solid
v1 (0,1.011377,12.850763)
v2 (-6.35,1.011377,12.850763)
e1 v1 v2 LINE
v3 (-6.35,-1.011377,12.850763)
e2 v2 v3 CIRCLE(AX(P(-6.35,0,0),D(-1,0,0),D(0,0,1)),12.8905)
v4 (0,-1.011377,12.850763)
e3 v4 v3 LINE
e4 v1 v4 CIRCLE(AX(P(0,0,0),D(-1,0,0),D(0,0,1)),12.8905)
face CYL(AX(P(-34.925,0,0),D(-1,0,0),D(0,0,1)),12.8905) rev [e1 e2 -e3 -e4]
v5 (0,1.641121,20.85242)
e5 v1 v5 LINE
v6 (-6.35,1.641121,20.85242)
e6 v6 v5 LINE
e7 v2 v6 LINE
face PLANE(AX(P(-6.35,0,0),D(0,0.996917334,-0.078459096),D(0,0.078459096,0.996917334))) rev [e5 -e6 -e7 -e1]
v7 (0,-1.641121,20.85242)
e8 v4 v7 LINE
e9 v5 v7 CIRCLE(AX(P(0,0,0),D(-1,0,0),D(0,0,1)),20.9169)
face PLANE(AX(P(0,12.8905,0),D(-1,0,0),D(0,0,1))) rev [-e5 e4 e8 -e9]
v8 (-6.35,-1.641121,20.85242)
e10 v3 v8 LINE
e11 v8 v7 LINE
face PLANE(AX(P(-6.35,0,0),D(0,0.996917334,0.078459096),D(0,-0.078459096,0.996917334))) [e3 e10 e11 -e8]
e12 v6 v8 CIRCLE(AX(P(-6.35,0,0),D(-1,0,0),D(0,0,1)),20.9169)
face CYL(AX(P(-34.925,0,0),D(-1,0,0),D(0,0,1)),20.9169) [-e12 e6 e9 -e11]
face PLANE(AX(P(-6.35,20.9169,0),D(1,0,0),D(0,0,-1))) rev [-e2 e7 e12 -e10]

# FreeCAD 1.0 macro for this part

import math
import FreeCAD as App
import Part
import Sketcher
from FreeCAD import Vector
Q = App.Units.Quantity


def add_polygon(sketch, points):
    """Adds a closed chain of lines whose ends are joined by coincident constraints."""
    first, n = sketch.GeometryCount, len(points)
    for a, b in zip(points, points[1:] + points[:1]):
        sketch.addGeometry(Part.LineSegment(App.Vector(*a, 0), App.Vector(*b, 0)), False)
    for i in range(n):
        sketch.addConstraint(Sketcher.Constraint("Coincident", first + i, 2, first + (i + 1) % n, 1))

doc = App.newDocument("Part")
body = doc.addObject("PartDesign::Body", "Body")

# Sketch on XY plane
sketch1 = body.newObject("Sketcher::SketchObject", "Sketch")
sketch1.AttachmentSupport = (doc.getObject("XY_Plane"), [""])
sketch1.MapMode = "FlatFace"
add_polygon(sketch1, [(-6, 21), (-6, 13), (0, 13), (0, 21)])  # lines 0-3
sketch1.addConstraint([
    Sketcher.Constraint("Vertical", 0),
    Sketcher.Constraint("Horizontal", 1),
    Sketcher.Constraint("Vertical", 2),
    Sketcher.Constraint("Horizontal", 3),
    Sketcher.Constraint("PointOnObject", 1, 2, -2),
    Sketcher.Constraint("DistanceX", 1, 1, 1, 2, Q("0.25 in")),
    Sketcher.Constraint("DistanceY", 0, 2, 0, 1, Q("0.316 in")),
    Sketcher.Constraint("DistanceY", -1, 1, 0, 2, Q("0.5075 in")),
])
revolution = body.newObject("PartDesign::Revolution", "Revolution")
revolution.Profile = sketch1
revolution.ReferenceAxis = (sketch1, ["H_Axis"])
revolution.Angle = 360

# Sketch on YZ plane
sketch2 = body.newObject("Sketcher::SketchObject", "Sketch001")
sketch2.AttachmentSupport = (doc.getObject("YZ_Plane"), [""])
sketch2.MapMode = "FlatFace"
sketch2.addGeometry([
    Part.LineSegment(Vector(0, 0, 0), Vector(-1.7, 21.3, 0)),
    Part.ArcOfCircle(Part.Circle(Vector(0, 0, 0), Vector(0, 0, 1), 21.3), math.radians(85.5), math.radians(94.5)),
    Part.LineSegment(Vector(1.7, 21.3, 0), Vector(0, 0, 0)),
], False)
sketch2.addConstraint([
    Sketcher.Constraint("Coincident", 0, 2, 1, 2),
    Sketcher.Constraint("Coincident", 1, 1, 2, 1),
    Sketcher.Constraint("Coincident", 2, 2, 0, 1),
    Sketcher.Constraint("Coincident", 1, 3, -1, 1),
    Sketcher.Constraint("Coincident", 2, 2, -1, 1),
    Sketcher.Constraint("Horizontal", 0, 2, 1, 1),
    Sketcher.Constraint("Angle", 0, Q("94.5 deg")),
    Sketcher.Constraint("Radius", 1, 21.335238),
])
pocket1 = body.newObject("PartDesign::Pocket", "Pocket")
pocket1.Profile = sketch2
pocket1.Type = "ThroughAll"

doc.recompute()
